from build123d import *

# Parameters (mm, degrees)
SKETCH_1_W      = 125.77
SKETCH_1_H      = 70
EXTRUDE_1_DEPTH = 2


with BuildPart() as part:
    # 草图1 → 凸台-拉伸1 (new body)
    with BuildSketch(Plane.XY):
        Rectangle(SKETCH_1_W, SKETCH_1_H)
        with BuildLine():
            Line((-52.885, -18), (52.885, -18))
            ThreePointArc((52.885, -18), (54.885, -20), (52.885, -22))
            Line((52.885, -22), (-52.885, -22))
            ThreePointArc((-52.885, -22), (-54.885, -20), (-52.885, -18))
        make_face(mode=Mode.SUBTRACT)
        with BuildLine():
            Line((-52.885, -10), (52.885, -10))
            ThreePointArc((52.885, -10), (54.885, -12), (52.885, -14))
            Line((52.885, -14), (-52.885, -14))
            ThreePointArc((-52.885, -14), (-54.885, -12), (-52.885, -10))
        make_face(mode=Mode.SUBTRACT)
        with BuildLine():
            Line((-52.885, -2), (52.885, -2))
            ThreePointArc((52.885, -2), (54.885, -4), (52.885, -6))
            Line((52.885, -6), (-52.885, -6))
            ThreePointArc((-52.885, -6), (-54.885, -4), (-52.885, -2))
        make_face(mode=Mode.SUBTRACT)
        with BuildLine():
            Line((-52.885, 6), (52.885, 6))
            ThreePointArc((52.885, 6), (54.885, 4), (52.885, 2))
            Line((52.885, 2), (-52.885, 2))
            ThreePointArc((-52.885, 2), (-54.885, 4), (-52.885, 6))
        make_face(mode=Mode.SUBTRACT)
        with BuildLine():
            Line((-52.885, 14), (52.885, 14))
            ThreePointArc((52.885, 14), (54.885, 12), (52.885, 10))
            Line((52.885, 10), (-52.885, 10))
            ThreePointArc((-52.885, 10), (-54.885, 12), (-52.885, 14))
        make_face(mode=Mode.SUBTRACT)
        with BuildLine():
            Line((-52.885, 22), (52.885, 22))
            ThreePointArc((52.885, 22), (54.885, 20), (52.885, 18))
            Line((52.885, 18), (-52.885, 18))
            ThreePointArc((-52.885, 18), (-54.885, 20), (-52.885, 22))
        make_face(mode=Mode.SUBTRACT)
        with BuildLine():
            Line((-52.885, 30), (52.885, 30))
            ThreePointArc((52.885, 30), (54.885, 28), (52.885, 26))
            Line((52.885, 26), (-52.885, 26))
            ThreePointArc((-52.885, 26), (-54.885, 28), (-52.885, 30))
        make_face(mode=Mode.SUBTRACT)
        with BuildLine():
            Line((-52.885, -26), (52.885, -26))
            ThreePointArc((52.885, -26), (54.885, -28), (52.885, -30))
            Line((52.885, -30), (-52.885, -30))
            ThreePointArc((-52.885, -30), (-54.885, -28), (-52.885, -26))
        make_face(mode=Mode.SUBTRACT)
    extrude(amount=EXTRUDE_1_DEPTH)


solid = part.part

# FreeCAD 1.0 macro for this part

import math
import FreeCAD as App
import Part
import Sketcher
from FreeCAD import Vector
Q = App.Units.Quantity

doc = App.newDocument("Part")
body = doc.addObject("PartDesign::Body", "Body")

sketch1 = body.newObject("Sketcher::SketchObject", "Sketch")
sketch1.AttachmentSupport = (doc.getObject("XY_Plane"), [""])
sketch1.MapMode = "FlatFace"
sketch1.addGeometry([
    Part.LineSegment(Vector(-62.9, 35, 0), Vector(-62.9, -35, 0)),
    Part.LineSegment(Vector(-62.9, -35, 0), Vector(62.9, -35, 0)),
    Part.LineSegment(Vector(62.9, -35, 0), Vector(62.9, 35, 0)),
    Part.LineSegment(Vector(62.9, 35, 0), Vector(-62.9, 35, 0)),
    Part.ArcOfCircle(Part.Circle(Vector(-52.9, -28, 0), Vector(0, 0, 1), 2), math.radians(90), math.radians(270)),
    Part.LineSegment(Vector(-52.9, -26, 0), Vector(52.9, -26, 0)),
    Part.ArcOfCircle(Part.Circle(Vector(52.9, -28, 0), Vector(0, 0, 1), 2), math.radians(-90), math.radians(90)),
    Part.LineSegment(Vector(52.9, -30, 0), Vector(-52.9, -30, 0)),
    Part.ArcOfCircle(Part.Circle(Vector(-52.9, -20, 0), Vector(0, 0, 1), 2), math.radians(90), math.radians(270)),
    Part.LineSegment(Vector(-52.9, -18, 0), Vector(52.9, -18, 0)),
    Part.ArcOfCircle(Part.Circle(Vector(52.9, -20, 0), Vector(0, 0, 1), 2), math.radians(-90), math.radians(90)),
    Part.LineSegment(Vector(52.9, -22, 0), Vector(-52.9, -22, 0)),
    Part.ArcOfCircle(Part.Circle(Vector(-52.9, -12, 0), Vector(0, 0, 1), 2), math.radians(90), math.radians(270)),
    Part.LineSegment(Vector(-52.9, -10, 0), Vector(52.9, -10, 0)),
    Part.ArcOfCircle(Part.Circle(Vector(52.9, -12, 0), Vector(0, 0, 1), 2), math.radians(-90), math.radians(90)),
    Part.LineSegment(Vector(52.9, -14, 0), Vector(-52.9, -14, 0)),
    Part.ArcOfCircle(Part.Circle(Vector(-52.9, -4, 0), Vector(0, 0, 1), 2), math.radians(90), math.radians(270)),
    Part.LineSegment(Vector(-52.9, -2, 0), Vector(52.9, -2, 0)),
    Part.ArcOfCircle(Part.Circle(Vector(52.9, -4, 0), Vector(0, 0, 1), 2), math.radians(-90), math.radians(90)),
    Part.LineSegment(Vector(52.9, -6, 0), Vector(-52.9, -6, 0)),
    Part.ArcOfCircle(Part.Circle(Vector(-52.9, 4, 0), Vector(0, 0, 1), 2), math.radians(90), math.radians(270)),
    Part.LineSegment(Vector(-52.9, 6, 0), Vector(52.9, 6, 0)),
    Part.ArcOfCircle(Part.Circle(Vector(52.9, 4, 0), Vector(0, 0, 1), 2), math.radians(-90), math.radians(90)),
    Part.LineSegment(Vector(52.9, 2, 0), Vector(-52.9, 2, 0)),
    Part.ArcOfCircle(Part.Circle(Vector(-52.9, 12, 0), Vector(0, 0, 1), 2), math.radians(90), math.radians(270)),
    Part.LineSegment(Vector(-52.9, 14, 0), Vector(52.9, 14, 0)),
    Part.ArcOfCircle(Part.Circle(Vector(52.9, 12, 0), Vector(0, 0, 1), 2), math.radians(-90), math.radians(90)),
    Part.LineSegment(Vector(52.9, 10, 0), Vector(-52.9, 10, 0)),
    Part.ArcOfCircle(Part.Circle(Vector(-52.9, 20, 0), Vector(0, 0, 1), 2), math.radians(90), math.radians(270)),
    Part.LineSegment(Vector(-52.9, 22, 0), Vector(52.9, 22, 0)),
    Part.ArcOfCircle(Part.Circle(Vector(52.9, 20, 0), Vector(0, 0, 1), 2), math.radians(-90), math.radians(90)),
    Part.LineSegment(Vector(52.9, 18, 0), Vector(-52.9, 18, 0)),
    Part.ArcOfCircle(Part.Circle(Vector(-52.9, 28, 0), Vector(0, 0, 1), 2), math.radians(90), math.radians(270)),
    Part.LineSegment(Vector(-52.9, 30, 0), Vector(52.9, 30, 0)),
    Part.ArcOfCircle(Part.Circle(Vector(52.9, 28, 0), Vector(0, 0, 1), 2), math.radians(-90), math.radians(90)),
    Part.LineSegment(Vector(52.9, 26, 0), Vector(-52.9, 26, 0)),
], False)
sketch1.addConstraint([
    Sketcher.Constraint("Coincident", 0, 2, 1, 1),
    Sketcher.Constraint("Coincident", 1, 2, 2, 1),
    Sketcher.Constraint("Coincident", 2, 2, 3, 1),
    Sketcher.Constraint("Coincident", 3, 2, 0, 1),
    Sketcher.Constraint("Tangent", 4, 1, 5, 1),
    Sketcher.Constraint("Tangent", 5, 2, 6, 2),
    Sketcher.Constraint("Tangent", 6, 1, 7, 1),
    Sketcher.Constraint("Tangent", 7, 2, 4, 2),
    Sketcher.Constraint("Tangent", 8, 1, 9, 1),
    Sketcher.Constraint("Tangent", 9, 2, 10, 2),
    Sketcher.Constraint("Tangent", 10, 1, 11, 1),
    Sketcher.Constraint("Tangent", 11, 2, 8, 2),
    Sketcher.Constraint("Tangent", 12, 1, 13, 1),
    Sketcher.Constraint("Tangent", 13, 2, 14, 2),
    Sketcher.Constraint("Tangent", 14, 1, 15, 1),
    Sketcher.Constraint("Tangent", 15, 2, 12, 2),
    Sketcher.Constraint("Tangent", 16, 1, 17, 1),
    Sketcher.Constraint("Tangent", 17, 2, 18, 2),
    Sketcher.Constraint("Tangent", 18, 1, 19, 1),
    Sketcher.Constraint("Tangent", 19, 2, 16, 2),
    Sketcher.Constraint("Tangent", 20, 1, 21, 1),
    Sketcher.Constraint("Tangent", 21, 2, 22, 2),
    Sketcher.Constraint("Tangent", 22, 1, 23, 1),
    Sketcher.Constraint("Tangent", 23, 2, 20, 2),
    Sketcher.Constraint("Tangent", 24, 1, 25, 1),
    Sketcher.Constraint("Tangent", 25, 2, 26, 2),
    Sketcher.Constraint("Tangent", 26, 1, 27, 1),
    Sketcher.Constraint("Tangent", 27, 2, 24, 2),
    Sketcher.Constraint("Tangent", 28, 1, 29, 1),
    Sketcher.Constraint("Tangent", 29, 2, 30, 2),
    Sketcher.Constraint("Tangent", 30, 1, 31, 1),
    Sketcher.Constraint("Tangent", 31, 2, 28, 2),
    Sketcher.Constraint("Tangent", 32, 1, 33, 1),
    Sketcher.Constraint("Tangent", 33, 2, 34, 2),
    Sketcher.Constraint("Tangent", 34, 1, 35, 1),
    Sketcher.Constraint("Tangent", 35, 2, 32, 2),
    Sketcher.Constraint("Vertical", 0),
    Sketcher.Constraint("Horizontal", 1),
    Sketcher.Constraint("Vertical", 2),
    Sketcher.Constraint("Horizontal", 3),
    Sketcher.Constraint("Horizontal", 5),
    Sketcher.Constraint("Horizontal", 7),
    Sketcher.Constraint("Horizontal", 9),
    Sketcher.Constraint("Horizontal", 11),
    Sketcher.Constraint("Horizontal", 13),
    Sketcher.Constraint("Horizontal", 15),
    Sketcher.Constraint("Horizontal", 17),
    Sketcher.Constraint("Horizontal", 19),
    Sketcher.Constraint("Horizontal", 21),
    Sketcher.Constraint("Horizontal", 23),
    Sketcher.Constraint("Horizontal", 25),
    Sketcher.Constraint("Horizontal", 27),
    Sketcher.Constraint("Horizontal", 29),
    Sketcher.Constraint("Horizontal", 31),
    Sketcher.Constraint("Horizontal", 33),
    Sketcher.Constraint("Horizontal", 35),
    Sketcher.Constraint("Equal", 6, 8),
    Sketcher.Constraint("Equal", 10, 12),
    Sketcher.Constraint("Equal", 14, 16),
    Sketcher.Constraint("Equal", 18, 20),
    Sketcher.Constraint("Equal", 22, 24),
    Sketcher.Constraint("Equal", 26, 28),
    Sketcher.Constraint("Equal", 30, 32),
    Sketcher.Constraint("Symmetric", 18, 3, 20, 3, -1, 1),
    Sketcher.Constraint("Symmetric", 14, 3, 24, 3, -1, 1),
    Sketcher.Constraint("Symmetric", 10, 3, 28, 3, -1, 1),
    Sketcher.Constraint("Symmetric", 6, 3, 32, 3, -1, 1),
    Sketcher.Constraint("Symmetric", 0, 2, 2, 2, -1, 1),
    Sketcher.Constraint("Vertical", 4, 3, 8, 3),
    Sketcher.Constraint("Vertical", 6, 3, 10, 3),
    Sketcher.Constraint("Vertical", 8, 3, 12, 3),
    Sketcher.Constraint("Vertical", 10, 3, 14, 3),
    Sketcher.Constraint("Vertical", 12, 3, 16, 3),
    Sketcher.Constraint("Vertical", 14, 3, 18, 3),
    Sketcher.Constraint("Vertical", 16, 3, 20, 3),
    Sketcher.Constraint("Vertical", 18, 3, 22, 3),
    Sketcher.Constraint("Vertical", 22, 3, 26, 3),
    Sketcher.Constraint("Vertical", 26, 3, 30, 3),
    Sketcher.Constraint("Vertical", 30, 3, 34, 3),
    Sketcher.Constraint("Radius", 4, Q("2 mm")),
    Sketcher.Constraint("DistanceY", 0, 2, 0, 1, Q("70 mm")),
    Sketcher.Constraint("DistanceY", 4, 3, -1, 1, Q("28 mm")),
    Sketcher.Constraint("DistanceY", 8, 3, -1, 1, Q("20 mm")),
    Sketcher.Constraint("DistanceY", 12, 3, -1, 1, Q("12 mm")),
    Sketcher.Constraint("DistanceY", 16, 3, -1, 1, Q("4 mm")),
    Sketcher.Constraint("DistanceX", 0, 2, 4, 3, Q("10 mm")),
    Sketcher.Constraint("DistanceX", 1, 1, 1, 2, Q("125.77 mm")),
])
pad1 = body.newObject("PartDesign::Pad", "Pad")
pad1.Profile = sketch1
pad1.Length = 2

doc.recompute()
